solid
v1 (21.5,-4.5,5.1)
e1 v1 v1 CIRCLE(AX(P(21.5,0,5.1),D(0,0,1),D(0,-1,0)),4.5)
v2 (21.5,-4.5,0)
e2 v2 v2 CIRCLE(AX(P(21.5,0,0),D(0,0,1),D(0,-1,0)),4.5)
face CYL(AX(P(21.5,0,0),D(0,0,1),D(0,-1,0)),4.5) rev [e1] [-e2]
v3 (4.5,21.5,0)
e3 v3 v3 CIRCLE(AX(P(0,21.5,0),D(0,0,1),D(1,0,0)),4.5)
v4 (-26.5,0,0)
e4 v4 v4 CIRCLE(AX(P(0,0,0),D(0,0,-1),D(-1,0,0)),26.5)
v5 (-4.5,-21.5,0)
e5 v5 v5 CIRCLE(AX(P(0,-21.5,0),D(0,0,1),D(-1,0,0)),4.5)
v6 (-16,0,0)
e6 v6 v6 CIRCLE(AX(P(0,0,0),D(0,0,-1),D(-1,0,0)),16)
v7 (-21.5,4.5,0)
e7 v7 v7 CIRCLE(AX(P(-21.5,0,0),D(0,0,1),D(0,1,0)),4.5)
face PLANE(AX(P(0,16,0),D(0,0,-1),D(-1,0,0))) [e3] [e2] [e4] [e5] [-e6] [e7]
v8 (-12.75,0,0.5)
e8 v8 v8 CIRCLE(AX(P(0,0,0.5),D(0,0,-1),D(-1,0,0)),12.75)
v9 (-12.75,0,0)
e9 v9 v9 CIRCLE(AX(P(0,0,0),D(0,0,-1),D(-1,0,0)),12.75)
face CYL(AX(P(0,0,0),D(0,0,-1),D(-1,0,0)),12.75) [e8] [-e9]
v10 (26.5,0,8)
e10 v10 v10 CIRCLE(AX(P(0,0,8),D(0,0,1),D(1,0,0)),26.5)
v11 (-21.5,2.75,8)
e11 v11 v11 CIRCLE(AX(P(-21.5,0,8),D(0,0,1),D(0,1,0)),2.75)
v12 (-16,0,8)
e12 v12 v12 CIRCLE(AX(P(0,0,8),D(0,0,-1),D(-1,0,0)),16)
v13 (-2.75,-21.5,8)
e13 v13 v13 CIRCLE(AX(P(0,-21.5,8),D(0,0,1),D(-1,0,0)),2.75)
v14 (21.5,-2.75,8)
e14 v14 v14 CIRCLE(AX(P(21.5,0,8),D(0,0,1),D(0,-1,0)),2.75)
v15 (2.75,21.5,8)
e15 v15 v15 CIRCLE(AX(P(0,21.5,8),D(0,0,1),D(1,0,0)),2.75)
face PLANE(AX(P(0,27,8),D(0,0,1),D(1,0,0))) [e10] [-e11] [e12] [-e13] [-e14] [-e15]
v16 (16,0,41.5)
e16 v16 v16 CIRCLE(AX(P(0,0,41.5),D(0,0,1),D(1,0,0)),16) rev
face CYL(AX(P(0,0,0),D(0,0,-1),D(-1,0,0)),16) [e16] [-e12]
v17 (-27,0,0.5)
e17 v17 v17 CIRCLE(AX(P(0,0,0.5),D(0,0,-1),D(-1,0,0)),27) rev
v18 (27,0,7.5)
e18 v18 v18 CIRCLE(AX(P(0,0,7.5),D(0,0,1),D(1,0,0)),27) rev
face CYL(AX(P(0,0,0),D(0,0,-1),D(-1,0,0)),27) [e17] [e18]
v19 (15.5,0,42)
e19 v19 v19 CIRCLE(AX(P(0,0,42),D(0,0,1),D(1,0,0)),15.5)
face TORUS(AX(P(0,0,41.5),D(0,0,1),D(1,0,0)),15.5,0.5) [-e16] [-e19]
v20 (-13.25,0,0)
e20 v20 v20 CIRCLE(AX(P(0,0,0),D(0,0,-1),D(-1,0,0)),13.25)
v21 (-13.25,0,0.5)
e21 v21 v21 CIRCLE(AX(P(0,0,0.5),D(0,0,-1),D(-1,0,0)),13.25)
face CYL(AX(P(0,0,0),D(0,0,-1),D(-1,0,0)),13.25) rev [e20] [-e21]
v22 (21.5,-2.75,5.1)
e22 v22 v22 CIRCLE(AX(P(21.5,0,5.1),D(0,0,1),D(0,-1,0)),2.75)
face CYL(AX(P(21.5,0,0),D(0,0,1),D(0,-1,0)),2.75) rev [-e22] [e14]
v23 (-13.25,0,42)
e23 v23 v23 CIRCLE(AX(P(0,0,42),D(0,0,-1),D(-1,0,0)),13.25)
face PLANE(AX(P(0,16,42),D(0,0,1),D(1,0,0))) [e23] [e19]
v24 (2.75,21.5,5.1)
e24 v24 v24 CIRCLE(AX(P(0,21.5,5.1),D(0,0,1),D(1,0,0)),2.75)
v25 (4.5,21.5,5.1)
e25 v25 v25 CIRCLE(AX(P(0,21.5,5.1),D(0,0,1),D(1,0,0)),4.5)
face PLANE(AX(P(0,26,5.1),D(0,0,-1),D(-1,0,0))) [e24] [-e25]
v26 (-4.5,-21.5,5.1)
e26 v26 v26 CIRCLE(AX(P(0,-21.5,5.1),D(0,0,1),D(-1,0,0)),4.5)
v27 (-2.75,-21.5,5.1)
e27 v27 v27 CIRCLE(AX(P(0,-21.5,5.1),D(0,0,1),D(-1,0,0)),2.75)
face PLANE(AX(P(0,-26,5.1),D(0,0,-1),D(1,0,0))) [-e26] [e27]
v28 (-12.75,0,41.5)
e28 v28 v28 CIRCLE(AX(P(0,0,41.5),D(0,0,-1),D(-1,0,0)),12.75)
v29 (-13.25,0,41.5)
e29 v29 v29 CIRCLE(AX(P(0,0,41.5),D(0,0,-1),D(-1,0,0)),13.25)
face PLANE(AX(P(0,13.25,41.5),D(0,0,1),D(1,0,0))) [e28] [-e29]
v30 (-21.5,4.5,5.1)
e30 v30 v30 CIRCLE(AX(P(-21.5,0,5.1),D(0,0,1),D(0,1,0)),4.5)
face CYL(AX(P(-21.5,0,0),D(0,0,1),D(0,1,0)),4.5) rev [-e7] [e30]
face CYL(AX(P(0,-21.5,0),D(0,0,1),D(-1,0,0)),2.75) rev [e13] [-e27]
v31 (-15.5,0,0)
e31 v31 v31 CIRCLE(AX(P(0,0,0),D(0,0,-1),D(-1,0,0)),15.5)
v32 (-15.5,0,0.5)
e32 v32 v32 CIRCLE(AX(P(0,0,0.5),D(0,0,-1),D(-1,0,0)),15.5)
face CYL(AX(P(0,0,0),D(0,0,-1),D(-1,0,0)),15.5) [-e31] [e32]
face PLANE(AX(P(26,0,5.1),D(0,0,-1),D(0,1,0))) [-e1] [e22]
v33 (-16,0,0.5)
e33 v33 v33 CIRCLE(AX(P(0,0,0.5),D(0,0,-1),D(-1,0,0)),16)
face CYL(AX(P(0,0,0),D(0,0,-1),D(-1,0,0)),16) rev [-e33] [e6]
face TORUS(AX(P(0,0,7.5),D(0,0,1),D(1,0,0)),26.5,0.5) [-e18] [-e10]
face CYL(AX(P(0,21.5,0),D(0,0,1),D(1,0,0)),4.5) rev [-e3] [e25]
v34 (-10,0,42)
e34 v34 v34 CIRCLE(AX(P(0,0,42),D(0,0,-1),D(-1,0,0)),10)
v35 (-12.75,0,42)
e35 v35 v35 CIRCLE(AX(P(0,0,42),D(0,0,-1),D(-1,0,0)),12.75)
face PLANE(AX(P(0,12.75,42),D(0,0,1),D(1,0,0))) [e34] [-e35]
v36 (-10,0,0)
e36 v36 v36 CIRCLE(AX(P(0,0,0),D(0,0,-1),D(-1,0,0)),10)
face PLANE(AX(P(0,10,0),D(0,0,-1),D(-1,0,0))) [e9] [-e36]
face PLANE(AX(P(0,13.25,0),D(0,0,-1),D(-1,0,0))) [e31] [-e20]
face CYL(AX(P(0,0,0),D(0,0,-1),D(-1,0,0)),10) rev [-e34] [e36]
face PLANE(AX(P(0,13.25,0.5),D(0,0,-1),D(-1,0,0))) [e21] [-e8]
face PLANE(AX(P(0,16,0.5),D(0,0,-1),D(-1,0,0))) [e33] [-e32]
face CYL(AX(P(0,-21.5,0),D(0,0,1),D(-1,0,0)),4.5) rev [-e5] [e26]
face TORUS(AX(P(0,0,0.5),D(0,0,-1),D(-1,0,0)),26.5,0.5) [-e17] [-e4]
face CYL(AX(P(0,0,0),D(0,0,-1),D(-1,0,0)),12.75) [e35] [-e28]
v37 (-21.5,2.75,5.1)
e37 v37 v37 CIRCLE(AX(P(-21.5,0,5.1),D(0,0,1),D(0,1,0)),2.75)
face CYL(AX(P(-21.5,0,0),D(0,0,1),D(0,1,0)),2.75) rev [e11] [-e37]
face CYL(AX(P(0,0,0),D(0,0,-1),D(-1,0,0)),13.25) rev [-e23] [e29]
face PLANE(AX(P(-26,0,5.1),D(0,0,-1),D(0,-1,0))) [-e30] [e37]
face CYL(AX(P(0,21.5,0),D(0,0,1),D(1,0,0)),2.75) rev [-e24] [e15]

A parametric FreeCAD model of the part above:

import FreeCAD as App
import Part
import Sketcher
from FreeCAD import Vector
Q = App.Units.Quantity


def edges_at(feature, points):
    """Names of the edges that pass closest to the given points."""
    edges = feature.Shape.Edges
    near = lambda p: min(range(len(edges)), key=lambda i: edges[i].distToShape(Part.Vertex(*p))[0])
    return sorted({f"Edge{near(p) + 1}" for p in points})

doc = App.newDocument("Part")
params = doc.addObject("Spreadsheet::Sheet", "Params")
for row, (alias, value) in enumerate([
    ("sketch1_width", "11 mm"),
    ("sketch1_height", "8 mm"),
    ("sketch1_height2", "34 mm"),
    ("sketch1_width2", "0.5 mm"),
    ("revolution_angle", "360 deg"),
    ("sketch2_height", "8 mm"),
    ("sketch2_width", "4.5 mm"),
    ("sketch2_height2", "5.1 mm"),
    ("sketch2_width2", "1.75 mm"),
    ("groove_angle", "360 deg"),
    ("fillet_radius", "0.5 mm"),
], start=1):
    params.set(f"A{row}", alias)
    params.set(f"B{row}", "=" + value)
    params.setAlias(f"B{row}", alias)

body = doc.addObject("PartDesign::Body", "Body")

# Sketch on YZ plane
sketch1 = doc.addObject("Sketcher::SketchObject", "Sketch")
body.addObject(sketch1)
sketch1.AttachmentSupport = (doc.YZ_Plane, [""])
sketch1.MapMode = "FlatFace"
sketch1.addGeometry(Part.LineSegment(Vector(10, 0, 0), Vector(12.75, 0, 0)), False)
sketch1.addGeometry(Part.LineSegment(Vector(12.75, 0, 0), Vector(12.75, 0.5, 0)), False)
sketch1.addGeometry(Part.LineSegment(Vector(12.75, 0.5, 0), Vector(13.25, 0.5, 0)), False)
sketch1.addGeometry(Part.LineSegment(Vector(13.25, 0.5, 0), Vector(13.25, 0, 0)), False)
sketch1.addGeometry(Part.LineSegment(Vector(13.25, 0, 0), Vector(15.5, 0, 0)), False)
sketch1.addGeometry(Part.LineSegment(Vector(15.5, 0, 0), Vector(15.5, 0.5, 0)), False)
sketch1.addGeometry(Part.LineSegment(Vector(15.5, 0.5, 0), Vector(16, 0.5, 0)), False)
sketch1.addGeometry(Part.LineSegment(Vector(16, 0.5, 0), Vector(16, 0, 0)), False)
sketch1.addGeometry(Part.LineSegment(Vector(16, 0, 0), Vector(27, 0, 0)), False)
sketch1.addGeometry(Part.LineSegment(Vector(27, 0, 0), Vector(27, 8, 0)), False)
sketch1.addGeometry(Part.LineSegment(Vector(27, 8, 0), Vector(16, 8, 0)), False)
sketch1.addGeometry(Part.LineSegment(Vector(16, 8, 0), Vector(16, 42, 0)), False)
sketch1.addGeometry(Part.LineSegment(Vector(16, 42, 0), Vector(13.25, 42, 0)), False)
sketch1.addGeometry(Part.LineSegment(Vector(13.25, 42, 0), Vector(13.25, 41.5, 0)), False)
sketch1.addGeometry(Part.LineSegment(Vector(13.25, 41.5, 0), Vector(12.75, 41.5, 0)), False)
sketch1.addGeometry(Part.LineSegment(Vector(12.75, 41.5, 0), Vector(12.75, 42, 0)), False)
sketch1.addGeometry(Part.LineSegment(Vector(12.75, 42, 0), Vector(10, 42, 0)), False)
sketch1.addGeometry(Part.LineSegment(Vector(10, 42, 0), Vector(10, 0, 0)), False)
sketch1.addConstraint(Sketcher.Constraint("Coincident", 0, 2, 1, 1))
sketch1.addConstraint(Sketcher.Constraint("Coincident", 1, 2, 2, 1))
sketch1.addConstraint(Sketcher.Constraint("Coincident", 2, 2, 3, 1))
sketch1.addConstraint(Sketcher.Constraint("Coincident", 3, 2, 4, 1))
sketch1.addConstraint(Sketcher.Constraint("Coincident", 4, 2, 5, 1))
sketch1.addConstraint(Sketcher.Constraint("Coincident", 5, 2, 6, 1))
sketch1.addConstraint(Sketcher.Constraint("Coincident", 6, 2, 7, 1))
sketch1.addConstraint(Sketcher.Constraint("Coincident", 7, 2, 8, 1))
sketch1.addConstraint(Sketcher.Constraint("Coincident", 8, 2, 9, 1))
sketch1.addConstraint(Sketcher.Constraint("Coincident", 9, 2, 10, 1))
sketch1.addConstraint(Sketcher.Constraint("Coincident", 10, 2, 11, 1))
sketch1.addConstraint(Sketcher.Constraint("Coincident", 11, 2, 12, 1))
sketch1.addConstraint(Sketcher.Constraint("Coincident", 12, 2, 13, 1))
sketch1.addConstraint(Sketcher.Constraint("Coincident", 13, 2, 14, 1))
sketch1.addConstraint(Sketcher.Constraint("Coincident", 14, 2, 15, 1))
sketch1.addConstraint(Sketcher.Constraint("Coincident", 15, 2, 16, 1))
sketch1.addConstraint(Sketcher.Constraint("Coincident", 16, 2, 17, 1))
sketch1.addConstraint(Sketcher.Constraint("Coincident", 17, 2, 0, 1))
sketch1.addConstraint(Sketcher.Constraint("Horizontal", 0))
sketch1.addConstraint(Sketcher.Constraint("Vertical", 1))
sketch1.addConstraint(Sketcher.Constraint("Horizontal", 2))
sketch1.addConstraint(Sketcher.Constraint("Vertical", 3))
sketch1.addConstraint(Sketcher.Constraint("Horizontal", 4))
sketch1.addConstraint(Sketcher.Constraint("Vertical", 5))
sketch1.addConstraint(Sketcher.Constraint("Horizontal", 6))
sketch1.addConstraint(Sketcher.Constraint("Vertical", 7))
sketch1.addConstraint(Sketcher.Constraint("Horizontal", 8))
sketch1.addConstraint(Sketcher.Constraint("Vertical", 9))
sketch1.addConstraint(Sketcher.Constraint("Horizontal", 10))
sketch1.addConstraint(Sketcher.Constraint("Vertical", 11))
sketch1.addConstraint(Sketcher.Constraint("Horizontal", 12))
sketch1.addConstraint(Sketcher.Constraint("Vertical", 13))
sketch1.addConstraint(Sketcher.Constraint("Horizontal", 14))
sketch1.addConstraint(Sketcher.Constraint("Vertical", 15))
sketch1.addConstraint(Sketcher.Constraint("Horizontal", 16))
sketch1.addConstraint(Sketcher.Constraint("Vertical", 17))
sketch1.addConstraint(Sketcher.Constraint("PointOnObject", 0, 2, -1))
sketch1.addConstraint(Sketcher.Constraint("PointOnObject", 3, 2, -1))
sketch1.addConstraint(Sketcher.Constraint("PointOnObject", 7, 2, -1))
sketch1.addConstraint(Sketcher.Constraint("Horizontal", 2, 2, 5, 2))
sketch1.addConstraint(Sketcher.Constraint("Horizontal", 12, 2, 15, 2))
sketch1.addConstraint(Sketcher.Constraint("Vertical", 7, 2, 10, 2))
sketch1.addConstraint(Sketcher.Constraint("Vertical", 3, 2, 12, 2))
sketch1.addConstraint(Sketcher.Constraint("Vertical", 1, 2, 14, 2))
sketch1.addConstraint(Sketcher.Constraint("Equal", 2, 6))
sketch1.addConstraint(Sketcher.Constraint("Equal", 0, 12))
sketch1.addConstraint(Sketcher.Constraint("Equal", 14, 1))
sketch1.addConstraint(Sketcher.Constraint("Equal", 7, 13))
sketch1.addConstraint(Sketcher.Constraint("DistanceX", 8, 1, 8, 2, Q("11 mm")))
sketch1.addConstraint(Sketcher.Constraint("DistanceY", 9, 1, 9, 2, Q("8 mm")))
sketch1.addConstraint(Sketcher.Constraint("DistanceY", 11, 1, 11, 2, Q("34 mm")))
sketch1.addConstraint(Sketcher.Constraint("DistanceX", 2, 1, 2, 2, Q("0.5 mm")))
sketch1.addConstraint(Sketcher.Constraint("DistanceX", -1, 1, 6, 2, Q("16 mm")))
sketch1.addConstraint(Sketcher.Constraint("DistanceX", -1, 1, 16, 2, Q("10 mm")))
sketch1.setExpression("Constraints[48]", "Params.sketch1_width")
sketch1.setExpression("Constraints[49]", "Params.sketch1_height")
sketch1.setExpression("Constraints[50]", "Params.sketch1_height2")
sketch1.setExpression("Constraints[51]", "Params.sketch1_width2")
revolution = doc.addObject("PartDesign::Revolution", "Revolution")
body.addObject(revolution)
revolution.Profile = sketch1
revolution.ReferenceAxis = (sketch1, ["V_Axis"])
revolution.setExpression("Angle", "Params.revolution_angle")

# Sketch on YZ plane
sketch2 = doc.addObject("Sketcher::SketchObject", "Sketch001")
body.addObject(sketch2)
sketch2.AttachmentSupport = (doc.YZ_Plane, [""])
sketch2.MapMode = "FlatFace"
sketch2.addGeometry(Part.LineSegment(Vector(26, 0, 0), Vector(26, 5.1, 0)), False)
sketch2.addGeometry(Part.LineSegment(Vector(26, 5.1, 0), Vector(24.25, 5.1, 0)), False)
sketch2.addGeometry(Part.LineSegment(Vector(24.25, 5.1, 0), Vector(24.25, 8, 0)), False)
sketch2.addGeometry(Part.LineSegment(Vector(24.25, 8, 0), Vector(21.5, 8, 0)), False)
sketch2.addGeometry(Part.LineSegment(Vector(21.5, 8, 0), Vector(21.5, 0, 0)), False)
sketch2.addGeometry(Part.LineSegment(Vector(21.5, 0, 0), Vector(26, 0, 0)), False)
sketch2.addGeometry(Part.LineSegment(Vector(21.5, 8, 0), Vector(21.5, 0, 0)), True)  # axis
sketch2.addConstraint(Sketcher.Constraint("Coincident", 0, 2, 1, 1))
sketch2.addConstraint(Sketcher.Constraint("Coincident", 1, 2, 2, 1))
sketch2.addConstraint(Sketcher.Constraint("Coincident", 2, 2, 3, 1))
sketch2.addConstraint(Sketcher.Constraint("Coincident", 3, 2, 4, 1))
sketch2.addConstraint(Sketcher.Constraint("Coincident", 4, 2, 5, 1))
sketch2.addConstraint(Sketcher.Constraint("Coincident", 5, 2, 0, 1))
sketch2.addConstraint(Sketcher.Constraint("Vertical", 0))
sketch2.addConstraint(Sketcher.Constraint("Horizontal", 1))
sketch2.addConstraint(Sketcher.Constraint("Vertical", 2))
sketch2.addConstraint(Sketcher.Constraint("Horizontal", 3))
sketch2.addConstraint(Sketcher.Constraint("Vertical", 4))
sketch2.addConstraint(Sketcher.Constraint("Horizontal", 5))
sketch2.addConstraint(Sketcher.Constraint("Vertical", 6))
sketch2.addConstraint(Sketcher.Constraint("Coincident", 6, 1, 3, 2))
sketch2.addConstraint(Sketcher.Constraint("PointOnObject", 4, 2, -1))
sketch2.addConstraint(Sketcher.Constraint("PointOnObject", 6, 2, -1))
sketch2.addConstraint(Sketcher.Constraint("DistanceY", 4, 2, 4, 1, Q("8 mm")))
sketch2.addConstraint(Sketcher.Constraint("DistanceX", 5, 1, 5, 2, Q("4.5 mm")))
sketch2.addConstraint(Sketcher.Constraint("DistanceY", 0, 1, 0, 2, Q("5.1 mm")))
sketch2.addConstraint(Sketcher.Constraint("DistanceX", -1, 1, 0, 2, Q("26 mm")))
sketch2.addConstraint(Sketcher.Constraint("DistanceX", 1, 2, 1, 1, Q("1.75 mm")))
sketch2.setExpression("Constraints[16]", "Params.sketch2_height")
sketch2.setExpression("Constraints[17]", "Params.sketch2_width")
sketch2.setExpression("Constraints[18]", "Params.sketch2_height2")
sketch2.setExpression("Constraints[20]", "Params.sketch2_width2")
groove = doc.addObject("PartDesign::Groove", "Groove")
body.addObject(groove)
groove.Profile = sketch2
groove.ReferenceAxis = (sketch2, ["Axis0"])
groove.setExpression("Angle", "Params.groove_angle")
doc.recompute()

polarpattern = doc.addObject("PartDesign::PolarPattern", "PolarPattern")
body.addObject(polarpattern)
polarpattern.Originals = [groove]
polarpattern.Axis = (doc.Z_Axis, [""])
polarpattern.Angle = 360
polarpattern.Occurrences = 4
body.Tip = polarpattern
doc.recompute()

fillet = doc.addObject("PartDesign::Fillet", "Fillet")
body.addObject(fillet)
fillet.Base = (polarpattern, edges_at(polarpattern, [(16, 0, 42), (27, 0, 8), (27, 0, 0)]))
fillet.setExpression("Radius", "Params.fillet_radius")

doc.recompute()
